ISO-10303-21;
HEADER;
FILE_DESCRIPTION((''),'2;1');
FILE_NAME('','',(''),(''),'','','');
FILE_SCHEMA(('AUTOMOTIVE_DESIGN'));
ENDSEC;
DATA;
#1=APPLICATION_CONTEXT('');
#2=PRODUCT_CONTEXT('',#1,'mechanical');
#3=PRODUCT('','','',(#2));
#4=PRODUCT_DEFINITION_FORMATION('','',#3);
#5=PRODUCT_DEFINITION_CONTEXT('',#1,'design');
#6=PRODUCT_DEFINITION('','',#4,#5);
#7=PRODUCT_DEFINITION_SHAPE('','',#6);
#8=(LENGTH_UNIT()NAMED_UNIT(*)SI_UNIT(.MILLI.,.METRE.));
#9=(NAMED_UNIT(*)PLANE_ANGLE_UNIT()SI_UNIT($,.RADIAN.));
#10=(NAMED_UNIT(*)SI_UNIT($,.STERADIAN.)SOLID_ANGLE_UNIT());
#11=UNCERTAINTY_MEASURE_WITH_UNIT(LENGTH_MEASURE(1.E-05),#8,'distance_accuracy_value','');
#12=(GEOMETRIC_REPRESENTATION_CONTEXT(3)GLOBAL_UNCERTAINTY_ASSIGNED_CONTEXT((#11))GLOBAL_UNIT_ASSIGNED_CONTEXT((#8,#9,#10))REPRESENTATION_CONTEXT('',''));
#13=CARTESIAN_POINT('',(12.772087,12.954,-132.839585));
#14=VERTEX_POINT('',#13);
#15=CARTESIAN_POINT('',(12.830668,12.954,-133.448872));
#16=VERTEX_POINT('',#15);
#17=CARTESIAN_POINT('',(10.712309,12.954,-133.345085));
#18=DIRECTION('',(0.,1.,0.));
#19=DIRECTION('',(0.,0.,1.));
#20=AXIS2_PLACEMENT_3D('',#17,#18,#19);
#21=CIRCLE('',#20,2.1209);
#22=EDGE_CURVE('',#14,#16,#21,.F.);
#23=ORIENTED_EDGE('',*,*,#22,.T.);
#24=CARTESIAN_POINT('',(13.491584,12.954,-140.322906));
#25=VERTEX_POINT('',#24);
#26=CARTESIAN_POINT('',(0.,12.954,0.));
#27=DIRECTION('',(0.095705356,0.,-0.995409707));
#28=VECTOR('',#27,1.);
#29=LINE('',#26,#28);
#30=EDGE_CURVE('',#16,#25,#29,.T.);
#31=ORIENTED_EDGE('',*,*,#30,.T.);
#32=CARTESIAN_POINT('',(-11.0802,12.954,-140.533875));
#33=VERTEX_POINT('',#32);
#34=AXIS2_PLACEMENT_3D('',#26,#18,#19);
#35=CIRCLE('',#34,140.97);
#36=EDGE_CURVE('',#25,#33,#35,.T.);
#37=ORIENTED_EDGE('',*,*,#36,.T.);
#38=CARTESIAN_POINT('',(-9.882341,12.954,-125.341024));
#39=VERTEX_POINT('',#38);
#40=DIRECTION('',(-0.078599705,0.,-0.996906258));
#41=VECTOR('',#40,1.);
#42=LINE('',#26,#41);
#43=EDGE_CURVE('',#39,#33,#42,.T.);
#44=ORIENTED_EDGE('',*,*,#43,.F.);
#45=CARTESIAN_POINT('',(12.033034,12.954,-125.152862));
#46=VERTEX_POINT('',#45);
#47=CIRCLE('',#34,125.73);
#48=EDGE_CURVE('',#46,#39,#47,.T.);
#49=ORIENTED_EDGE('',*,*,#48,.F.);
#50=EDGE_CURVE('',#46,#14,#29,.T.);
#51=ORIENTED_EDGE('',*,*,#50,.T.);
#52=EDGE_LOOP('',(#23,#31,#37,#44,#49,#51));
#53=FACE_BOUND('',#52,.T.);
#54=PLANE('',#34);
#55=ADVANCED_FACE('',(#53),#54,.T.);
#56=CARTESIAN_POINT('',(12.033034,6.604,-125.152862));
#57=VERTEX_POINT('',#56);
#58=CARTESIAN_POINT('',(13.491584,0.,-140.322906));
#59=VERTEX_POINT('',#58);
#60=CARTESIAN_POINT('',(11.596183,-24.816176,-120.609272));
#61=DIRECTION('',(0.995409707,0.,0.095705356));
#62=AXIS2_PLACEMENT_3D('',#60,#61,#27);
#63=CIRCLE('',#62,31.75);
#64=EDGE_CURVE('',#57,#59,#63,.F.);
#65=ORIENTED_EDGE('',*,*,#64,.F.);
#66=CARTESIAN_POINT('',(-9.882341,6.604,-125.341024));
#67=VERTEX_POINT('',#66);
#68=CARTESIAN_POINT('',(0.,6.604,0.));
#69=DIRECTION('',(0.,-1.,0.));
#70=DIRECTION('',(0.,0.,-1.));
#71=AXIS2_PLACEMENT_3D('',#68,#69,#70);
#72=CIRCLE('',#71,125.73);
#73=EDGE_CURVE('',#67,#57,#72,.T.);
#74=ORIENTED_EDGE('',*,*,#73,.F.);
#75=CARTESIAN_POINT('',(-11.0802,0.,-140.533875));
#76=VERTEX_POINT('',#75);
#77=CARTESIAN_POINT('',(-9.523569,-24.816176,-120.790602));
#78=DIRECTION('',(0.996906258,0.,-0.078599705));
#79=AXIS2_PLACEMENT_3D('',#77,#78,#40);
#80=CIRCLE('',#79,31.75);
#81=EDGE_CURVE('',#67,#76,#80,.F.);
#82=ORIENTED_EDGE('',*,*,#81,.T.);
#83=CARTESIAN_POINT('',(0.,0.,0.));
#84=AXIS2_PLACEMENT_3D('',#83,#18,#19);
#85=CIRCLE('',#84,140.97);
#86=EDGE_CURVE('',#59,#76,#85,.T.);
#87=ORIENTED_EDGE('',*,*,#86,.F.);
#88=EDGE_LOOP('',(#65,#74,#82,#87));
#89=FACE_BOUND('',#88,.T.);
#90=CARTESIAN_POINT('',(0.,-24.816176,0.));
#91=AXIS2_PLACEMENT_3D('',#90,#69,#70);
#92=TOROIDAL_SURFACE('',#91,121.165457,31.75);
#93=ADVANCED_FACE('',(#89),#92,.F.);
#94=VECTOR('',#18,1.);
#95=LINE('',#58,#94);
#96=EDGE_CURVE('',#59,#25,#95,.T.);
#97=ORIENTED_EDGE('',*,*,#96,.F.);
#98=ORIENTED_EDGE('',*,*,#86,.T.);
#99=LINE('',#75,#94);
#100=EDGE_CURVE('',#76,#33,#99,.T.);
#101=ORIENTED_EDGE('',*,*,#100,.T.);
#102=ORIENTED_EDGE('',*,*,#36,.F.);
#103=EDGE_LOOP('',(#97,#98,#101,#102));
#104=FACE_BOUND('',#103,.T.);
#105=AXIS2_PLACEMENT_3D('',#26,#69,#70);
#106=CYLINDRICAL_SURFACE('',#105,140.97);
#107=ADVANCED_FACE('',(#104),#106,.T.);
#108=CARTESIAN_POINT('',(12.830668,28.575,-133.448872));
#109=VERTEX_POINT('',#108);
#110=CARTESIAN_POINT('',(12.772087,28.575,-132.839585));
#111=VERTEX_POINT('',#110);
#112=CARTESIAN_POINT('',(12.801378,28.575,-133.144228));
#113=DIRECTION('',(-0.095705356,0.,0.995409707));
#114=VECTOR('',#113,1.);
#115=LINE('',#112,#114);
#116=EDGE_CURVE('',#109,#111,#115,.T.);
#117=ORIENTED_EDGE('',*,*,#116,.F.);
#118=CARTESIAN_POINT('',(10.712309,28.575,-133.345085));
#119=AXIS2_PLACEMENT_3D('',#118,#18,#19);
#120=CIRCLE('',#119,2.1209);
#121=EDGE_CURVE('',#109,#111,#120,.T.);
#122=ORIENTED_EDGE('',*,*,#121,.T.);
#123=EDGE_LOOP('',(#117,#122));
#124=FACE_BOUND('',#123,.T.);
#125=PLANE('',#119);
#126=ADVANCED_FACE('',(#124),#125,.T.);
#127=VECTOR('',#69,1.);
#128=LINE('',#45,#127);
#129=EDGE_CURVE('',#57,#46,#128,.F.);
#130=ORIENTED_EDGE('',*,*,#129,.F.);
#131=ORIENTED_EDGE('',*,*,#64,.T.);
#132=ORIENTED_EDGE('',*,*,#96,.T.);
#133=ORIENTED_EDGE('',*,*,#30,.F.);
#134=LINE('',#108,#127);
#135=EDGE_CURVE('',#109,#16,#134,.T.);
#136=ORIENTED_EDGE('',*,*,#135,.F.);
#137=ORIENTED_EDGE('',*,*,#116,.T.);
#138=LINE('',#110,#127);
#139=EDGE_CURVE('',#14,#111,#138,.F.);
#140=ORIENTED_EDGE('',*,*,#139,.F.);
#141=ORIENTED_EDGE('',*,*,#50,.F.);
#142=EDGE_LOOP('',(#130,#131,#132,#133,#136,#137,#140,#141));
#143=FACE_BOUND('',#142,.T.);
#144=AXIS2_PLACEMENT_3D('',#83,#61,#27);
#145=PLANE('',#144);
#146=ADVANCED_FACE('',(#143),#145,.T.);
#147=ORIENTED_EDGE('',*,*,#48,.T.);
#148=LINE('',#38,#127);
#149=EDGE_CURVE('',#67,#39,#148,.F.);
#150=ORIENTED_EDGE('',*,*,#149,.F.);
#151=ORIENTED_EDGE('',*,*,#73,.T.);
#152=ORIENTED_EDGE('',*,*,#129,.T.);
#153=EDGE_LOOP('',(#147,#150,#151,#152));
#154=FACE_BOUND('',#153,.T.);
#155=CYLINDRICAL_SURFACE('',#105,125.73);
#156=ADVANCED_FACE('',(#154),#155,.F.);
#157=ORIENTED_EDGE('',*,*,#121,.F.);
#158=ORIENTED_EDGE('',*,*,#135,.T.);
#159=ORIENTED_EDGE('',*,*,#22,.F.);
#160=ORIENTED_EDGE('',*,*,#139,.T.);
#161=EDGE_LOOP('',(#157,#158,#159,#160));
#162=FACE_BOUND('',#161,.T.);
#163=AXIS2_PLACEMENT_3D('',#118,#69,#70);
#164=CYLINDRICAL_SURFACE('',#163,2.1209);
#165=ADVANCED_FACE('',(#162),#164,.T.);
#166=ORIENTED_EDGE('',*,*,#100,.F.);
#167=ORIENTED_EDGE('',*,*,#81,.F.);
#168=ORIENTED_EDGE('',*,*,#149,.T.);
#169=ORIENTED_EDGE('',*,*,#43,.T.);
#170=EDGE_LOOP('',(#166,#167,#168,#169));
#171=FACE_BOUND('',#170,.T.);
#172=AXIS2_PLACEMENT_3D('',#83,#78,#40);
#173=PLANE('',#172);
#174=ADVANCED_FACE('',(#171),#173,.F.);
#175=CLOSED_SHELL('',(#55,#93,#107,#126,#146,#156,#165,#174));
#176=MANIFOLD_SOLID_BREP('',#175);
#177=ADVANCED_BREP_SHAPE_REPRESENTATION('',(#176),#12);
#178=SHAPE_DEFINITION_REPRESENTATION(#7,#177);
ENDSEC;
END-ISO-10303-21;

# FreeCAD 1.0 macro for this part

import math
import FreeCAD as App
import Part
import Sketcher

V = App.Vector
Q = App.Units.Quantity


def add_polygon(sketch, points):
    """Adds a closed chain of lines whose ends are joined by coincident constraints."""
    first, n = sketch.GeometryCount, len(points)
    for a, b in zip(points, points[1:] + points[:1]):
        sketch.addGeometry(Part.LineSegment(App.Vector(*a, 0), App.Vector(*b, 0)), False)
    for i in range(n):
        sketch.addConstraint(Sketcher.Constraint("Coincident", first + i, 2, first + (i + 1) % n, 1))

doc = App.newDocument("Part")
body = doc.addObject("PartDesign::Body", "Body")

sketch1 = body.newObject("Sketcher::SketchObject", "Sketch")
sketch1.AttachmentSupport = (doc.getObject("XZ_Plane"), [""])
sketch1.MapMode = "FlatFace"
sketch1.addGeometry(Part.Circle(V(0, 0, 0), V(0, 0, 1), 141), False)
sketch1.addGeometry(Part.Circle(V(0, 0, 0), V(0, 0, 1), 126), False)
sketch1.addConstraint(Sketcher.Constraint("Coincident", 0, 3, -1, 1))
sketch1.addConstraint(Sketcher.Constraint("Coincident", 1, 3, -1, 1))
sketch1.addConstraint(Sketcher.Constraint("Diameter", 0, Q("11.1 in")))
sketch1.addConstraint(Sketcher.Constraint("Diameter", 1, Q("9.9 in")))
pad1 = body.newObject("PartDesign::Pad", "Pad")
pad1.Profile = sketch1
pad1.Length = Q("0.51 in")
pad1.Reversed = True

sketch2 = body.newObject("Sketcher::SketchObject", "Sketch001")
sketch2.AttachmentSupport = (doc.getObject("XZ_Plane"), [""])
sketch2.MapMode = "FlatFace"
sketch2.addGeometry(Part.LineSegment(V(13, -140, 0), V(12, -125, 0)), False)
sketch2.addGeometry(Part.ArcOfCircle(Part.Circle(V(0, 0, 0), V(0, 0, 1), 126), math.radians(-85), math.radians(0)), False)
sketch2.addGeometry(Part.ArcOfCircle(Part.Circle(V(0, 0, 0), V(0, 0, 1), 126), math.radians(0), math.radians(265)), False)
sketch2.addGeometry(Part.LineSegment(V(-10, -125, 0), V(-11, -141, 0)), False)
sketch2.addGeometry(Part.ArcOfCircle(Part.Circle(V(0, 0, 0), V(0, 0, 1), 141), math.radians(0), math.radians(265)), False)
sketch2.addGeometry(Part.ArcOfCircle(Part.Circle(V(0, 0, 0), V(0, 0, 1), 141), math.radians(-85), math.radians(0)), False)
sketch2.addConstraint(Sketcher.Constraint("Coincident", 0, 2, 1, 1))
sketch2.addConstraint(Sketcher.Constraint("Tangent", 1, 2, 2, 1))
sketch2.addConstraint(Sketcher.Constraint("Coincident", 2, 2, 3, 1))
sketch2.addConstraint(Sketcher.Constraint("Coincident", 3, 2, 4, 2))
sketch2.addConstraint(Sketcher.Constraint("Tangent", 4, 1, 5, 2))
sketch2.addConstraint(Sketcher.Constraint("Coincident", 5, 1, 0, 1))
sketch2.addConstraint(Sketcher.Constraint("Coincident", 1, 3, -1, 1))
sketch2.addConstraint(Sketcher.Constraint("Coincident", 4, 3, -1, 1))
sketch2.addConstraint(Sketcher.Constraint("Equal", 1, 2))
sketch2.addConstraint(Sketcher.Constraint("Equal", 4, 5))
sketch2.addConstraint(Sketcher.Constraint("PointOnObject", 1, 2, -1))
sketch2.addConstraint(Sketcher.Constraint("PointOnObject", 4, 1, -1))
sketch2.addConstraint(Sketcher.Constraint("Radius", 1, Q("4.95 in")))
sketch2.addConstraint(Sketcher.Constraint("Radius", 4, Q("5.55 in")))
sketch2.addConstraint(Sketcher.Constraint("DistanceX", 3, 2, -1, 1, 11.0802))
sketch2.addConstraint(Sketcher.Constraint("DistanceX", 2, 2, -1, 1, 9.882341))
sketch2.addConstraint(Sketcher.Constraint("DistanceY", 2, 2, 0, 2, 0.188161))
sketch2.addConstraint(Sketcher.Constraint("DistanceX", 0, 2, 5, 1, 1.45855))
pocket1 = body.newObject("PartDesign::Pocket", "Pocket")
pocket1.Profile = sketch2
pocket1.Length = Q("0.51 in")

sketch3 = body.newObject("Sketcher::SketchObject", "Sketch002")
sketch3.AttachmentSupport = (doc.getObject("XZ_Plane"), [""])
sketch3.MapMode = "FlatFace"
sketch3.addGeometry(Part.Circle(V(10.7, -133.3, 0), V(0, 0, 1), 2.1), False)
sketch3.addConstraint(Sketcher.Constraint("Diameter", 0, Q("0.167 in")))
sketch3.addConstraint(Sketcher.Constraint("DistanceX", -1, 1, 0, 3, 10.712309))
sketch3.addConstraint(Sketcher.Constraint("DistanceY", 0, 3, -1, 1, 133.345085))
pad2 = body.newObject("PartDesign::Pad", "Pad001")
pad2.Profile = sketch3
pad2.Length = Q("1.125 in")
pad2.Reversed = True

sketch4 = body.newObject("Sketcher::SketchObject", "Sketch003")
sketch4.AttachmentSupport = (doc.getObject("XY_Plane"), [""])
sketch4.MapMode = "FlatFace"
sketch4.addGeometry(Part.LineSegment(V(-126, 0, 0), V(-126, 7, 0)), False)
sketch4.addGeometry(Part.ArcOfCircle(Part.Circle(V(-121, -25, 0), V(0, 0, 1), 32), math.radians(98), math.radians(129)), False)
sketch4.addGeometry(Part.LineSegment(V(-141, 0, 0), V(-126, 0, 0)), False)
sketch4.addConstraint(Sketcher.Constraint("Coincident", 0, 2, 1, 1))
sketch4.addConstraint(Sketcher.Constraint("Coincident", 1, 2, 2, 1))
sketch4.addConstraint(Sketcher.Constraint("Coincident", 2, 2, 0, 1))
sketch4.addConstraint(Sketcher.Constraint("Vertical", 0))
sketch4.addConstraint(Sketcher.Constraint("Horizontal", 2))
sketch4.addConstraint(Sketcher.Constraint("PointOnObject", 1, 2, -1))
sketch4.addConstraint(Sketcher.Constraint("Radius", 1, Q("1.25 in")))
sketch4.addConstraint(Sketcher.Constraint("DistanceX", 2, 1, 2, 2, Q("0.6 in")))
sketch4.addConstraint(Sketcher.Constraint("DistanceY", 0, 1, 0, 2, Q("0.26 in")))
sketch4.addConstraint(Sketcher.Constraint("DistanceX", 0, 2, -1, 1, Q("4.95 in")))
groove = body.newObject("PartDesign::Groove", "Groove")
groove.Profile = sketch4
groove.ReferenceAxis = (sketch4, ["V_Axis"])
groove.Angle = 360

sketch5 = body.newObject("Sketcher::SketchObject", "Sketch004")
sketch5.Placement = App.Placement(V(0, 0, 0), App.Rotation(V(0.095705356, 0, -0.995409707), V(0, 1, 0), V(0.995409707, 0, 0.095705356), "ZXY"))
add_polygon(sketch5, [(115, 49), (115, -1), (151, -1), (151, 49)])
sketch5.addConstraint(Sketcher.Constraint("Vertical", 0))
sketch5.addConstraint(Sketcher.Constraint("Horizontal", 1))
sketch5.addConstraint(Sketcher.Constraint("Vertical", 2))
sketch5.addConstraint(Sketcher.Constraint("Horizontal", 3))
sketch5.addConstraint(Sketcher.Constraint("DistanceY", 0, 2, 0, 1, 50.0))
sketch5.addConstraint(Sketcher.Constraint("DistanceX", 1, 1, 1, 2, 35.941657))
sketch5.addConstraint(Sketcher.Constraint("DistanceY", 0, 2, -1, 1, 1.43657))
sketch5.addConstraint(Sketcher.Constraint("DistanceX", -1, 1, 0, 2, 114.948748))
pocket2 = body.newObject("PartDesign::Pocket", "Pocket001")
pocket2.Profile = sketch5
pocket2.Length = Q("1 in")
pocket2.Reversed = True

doc.recompute()
